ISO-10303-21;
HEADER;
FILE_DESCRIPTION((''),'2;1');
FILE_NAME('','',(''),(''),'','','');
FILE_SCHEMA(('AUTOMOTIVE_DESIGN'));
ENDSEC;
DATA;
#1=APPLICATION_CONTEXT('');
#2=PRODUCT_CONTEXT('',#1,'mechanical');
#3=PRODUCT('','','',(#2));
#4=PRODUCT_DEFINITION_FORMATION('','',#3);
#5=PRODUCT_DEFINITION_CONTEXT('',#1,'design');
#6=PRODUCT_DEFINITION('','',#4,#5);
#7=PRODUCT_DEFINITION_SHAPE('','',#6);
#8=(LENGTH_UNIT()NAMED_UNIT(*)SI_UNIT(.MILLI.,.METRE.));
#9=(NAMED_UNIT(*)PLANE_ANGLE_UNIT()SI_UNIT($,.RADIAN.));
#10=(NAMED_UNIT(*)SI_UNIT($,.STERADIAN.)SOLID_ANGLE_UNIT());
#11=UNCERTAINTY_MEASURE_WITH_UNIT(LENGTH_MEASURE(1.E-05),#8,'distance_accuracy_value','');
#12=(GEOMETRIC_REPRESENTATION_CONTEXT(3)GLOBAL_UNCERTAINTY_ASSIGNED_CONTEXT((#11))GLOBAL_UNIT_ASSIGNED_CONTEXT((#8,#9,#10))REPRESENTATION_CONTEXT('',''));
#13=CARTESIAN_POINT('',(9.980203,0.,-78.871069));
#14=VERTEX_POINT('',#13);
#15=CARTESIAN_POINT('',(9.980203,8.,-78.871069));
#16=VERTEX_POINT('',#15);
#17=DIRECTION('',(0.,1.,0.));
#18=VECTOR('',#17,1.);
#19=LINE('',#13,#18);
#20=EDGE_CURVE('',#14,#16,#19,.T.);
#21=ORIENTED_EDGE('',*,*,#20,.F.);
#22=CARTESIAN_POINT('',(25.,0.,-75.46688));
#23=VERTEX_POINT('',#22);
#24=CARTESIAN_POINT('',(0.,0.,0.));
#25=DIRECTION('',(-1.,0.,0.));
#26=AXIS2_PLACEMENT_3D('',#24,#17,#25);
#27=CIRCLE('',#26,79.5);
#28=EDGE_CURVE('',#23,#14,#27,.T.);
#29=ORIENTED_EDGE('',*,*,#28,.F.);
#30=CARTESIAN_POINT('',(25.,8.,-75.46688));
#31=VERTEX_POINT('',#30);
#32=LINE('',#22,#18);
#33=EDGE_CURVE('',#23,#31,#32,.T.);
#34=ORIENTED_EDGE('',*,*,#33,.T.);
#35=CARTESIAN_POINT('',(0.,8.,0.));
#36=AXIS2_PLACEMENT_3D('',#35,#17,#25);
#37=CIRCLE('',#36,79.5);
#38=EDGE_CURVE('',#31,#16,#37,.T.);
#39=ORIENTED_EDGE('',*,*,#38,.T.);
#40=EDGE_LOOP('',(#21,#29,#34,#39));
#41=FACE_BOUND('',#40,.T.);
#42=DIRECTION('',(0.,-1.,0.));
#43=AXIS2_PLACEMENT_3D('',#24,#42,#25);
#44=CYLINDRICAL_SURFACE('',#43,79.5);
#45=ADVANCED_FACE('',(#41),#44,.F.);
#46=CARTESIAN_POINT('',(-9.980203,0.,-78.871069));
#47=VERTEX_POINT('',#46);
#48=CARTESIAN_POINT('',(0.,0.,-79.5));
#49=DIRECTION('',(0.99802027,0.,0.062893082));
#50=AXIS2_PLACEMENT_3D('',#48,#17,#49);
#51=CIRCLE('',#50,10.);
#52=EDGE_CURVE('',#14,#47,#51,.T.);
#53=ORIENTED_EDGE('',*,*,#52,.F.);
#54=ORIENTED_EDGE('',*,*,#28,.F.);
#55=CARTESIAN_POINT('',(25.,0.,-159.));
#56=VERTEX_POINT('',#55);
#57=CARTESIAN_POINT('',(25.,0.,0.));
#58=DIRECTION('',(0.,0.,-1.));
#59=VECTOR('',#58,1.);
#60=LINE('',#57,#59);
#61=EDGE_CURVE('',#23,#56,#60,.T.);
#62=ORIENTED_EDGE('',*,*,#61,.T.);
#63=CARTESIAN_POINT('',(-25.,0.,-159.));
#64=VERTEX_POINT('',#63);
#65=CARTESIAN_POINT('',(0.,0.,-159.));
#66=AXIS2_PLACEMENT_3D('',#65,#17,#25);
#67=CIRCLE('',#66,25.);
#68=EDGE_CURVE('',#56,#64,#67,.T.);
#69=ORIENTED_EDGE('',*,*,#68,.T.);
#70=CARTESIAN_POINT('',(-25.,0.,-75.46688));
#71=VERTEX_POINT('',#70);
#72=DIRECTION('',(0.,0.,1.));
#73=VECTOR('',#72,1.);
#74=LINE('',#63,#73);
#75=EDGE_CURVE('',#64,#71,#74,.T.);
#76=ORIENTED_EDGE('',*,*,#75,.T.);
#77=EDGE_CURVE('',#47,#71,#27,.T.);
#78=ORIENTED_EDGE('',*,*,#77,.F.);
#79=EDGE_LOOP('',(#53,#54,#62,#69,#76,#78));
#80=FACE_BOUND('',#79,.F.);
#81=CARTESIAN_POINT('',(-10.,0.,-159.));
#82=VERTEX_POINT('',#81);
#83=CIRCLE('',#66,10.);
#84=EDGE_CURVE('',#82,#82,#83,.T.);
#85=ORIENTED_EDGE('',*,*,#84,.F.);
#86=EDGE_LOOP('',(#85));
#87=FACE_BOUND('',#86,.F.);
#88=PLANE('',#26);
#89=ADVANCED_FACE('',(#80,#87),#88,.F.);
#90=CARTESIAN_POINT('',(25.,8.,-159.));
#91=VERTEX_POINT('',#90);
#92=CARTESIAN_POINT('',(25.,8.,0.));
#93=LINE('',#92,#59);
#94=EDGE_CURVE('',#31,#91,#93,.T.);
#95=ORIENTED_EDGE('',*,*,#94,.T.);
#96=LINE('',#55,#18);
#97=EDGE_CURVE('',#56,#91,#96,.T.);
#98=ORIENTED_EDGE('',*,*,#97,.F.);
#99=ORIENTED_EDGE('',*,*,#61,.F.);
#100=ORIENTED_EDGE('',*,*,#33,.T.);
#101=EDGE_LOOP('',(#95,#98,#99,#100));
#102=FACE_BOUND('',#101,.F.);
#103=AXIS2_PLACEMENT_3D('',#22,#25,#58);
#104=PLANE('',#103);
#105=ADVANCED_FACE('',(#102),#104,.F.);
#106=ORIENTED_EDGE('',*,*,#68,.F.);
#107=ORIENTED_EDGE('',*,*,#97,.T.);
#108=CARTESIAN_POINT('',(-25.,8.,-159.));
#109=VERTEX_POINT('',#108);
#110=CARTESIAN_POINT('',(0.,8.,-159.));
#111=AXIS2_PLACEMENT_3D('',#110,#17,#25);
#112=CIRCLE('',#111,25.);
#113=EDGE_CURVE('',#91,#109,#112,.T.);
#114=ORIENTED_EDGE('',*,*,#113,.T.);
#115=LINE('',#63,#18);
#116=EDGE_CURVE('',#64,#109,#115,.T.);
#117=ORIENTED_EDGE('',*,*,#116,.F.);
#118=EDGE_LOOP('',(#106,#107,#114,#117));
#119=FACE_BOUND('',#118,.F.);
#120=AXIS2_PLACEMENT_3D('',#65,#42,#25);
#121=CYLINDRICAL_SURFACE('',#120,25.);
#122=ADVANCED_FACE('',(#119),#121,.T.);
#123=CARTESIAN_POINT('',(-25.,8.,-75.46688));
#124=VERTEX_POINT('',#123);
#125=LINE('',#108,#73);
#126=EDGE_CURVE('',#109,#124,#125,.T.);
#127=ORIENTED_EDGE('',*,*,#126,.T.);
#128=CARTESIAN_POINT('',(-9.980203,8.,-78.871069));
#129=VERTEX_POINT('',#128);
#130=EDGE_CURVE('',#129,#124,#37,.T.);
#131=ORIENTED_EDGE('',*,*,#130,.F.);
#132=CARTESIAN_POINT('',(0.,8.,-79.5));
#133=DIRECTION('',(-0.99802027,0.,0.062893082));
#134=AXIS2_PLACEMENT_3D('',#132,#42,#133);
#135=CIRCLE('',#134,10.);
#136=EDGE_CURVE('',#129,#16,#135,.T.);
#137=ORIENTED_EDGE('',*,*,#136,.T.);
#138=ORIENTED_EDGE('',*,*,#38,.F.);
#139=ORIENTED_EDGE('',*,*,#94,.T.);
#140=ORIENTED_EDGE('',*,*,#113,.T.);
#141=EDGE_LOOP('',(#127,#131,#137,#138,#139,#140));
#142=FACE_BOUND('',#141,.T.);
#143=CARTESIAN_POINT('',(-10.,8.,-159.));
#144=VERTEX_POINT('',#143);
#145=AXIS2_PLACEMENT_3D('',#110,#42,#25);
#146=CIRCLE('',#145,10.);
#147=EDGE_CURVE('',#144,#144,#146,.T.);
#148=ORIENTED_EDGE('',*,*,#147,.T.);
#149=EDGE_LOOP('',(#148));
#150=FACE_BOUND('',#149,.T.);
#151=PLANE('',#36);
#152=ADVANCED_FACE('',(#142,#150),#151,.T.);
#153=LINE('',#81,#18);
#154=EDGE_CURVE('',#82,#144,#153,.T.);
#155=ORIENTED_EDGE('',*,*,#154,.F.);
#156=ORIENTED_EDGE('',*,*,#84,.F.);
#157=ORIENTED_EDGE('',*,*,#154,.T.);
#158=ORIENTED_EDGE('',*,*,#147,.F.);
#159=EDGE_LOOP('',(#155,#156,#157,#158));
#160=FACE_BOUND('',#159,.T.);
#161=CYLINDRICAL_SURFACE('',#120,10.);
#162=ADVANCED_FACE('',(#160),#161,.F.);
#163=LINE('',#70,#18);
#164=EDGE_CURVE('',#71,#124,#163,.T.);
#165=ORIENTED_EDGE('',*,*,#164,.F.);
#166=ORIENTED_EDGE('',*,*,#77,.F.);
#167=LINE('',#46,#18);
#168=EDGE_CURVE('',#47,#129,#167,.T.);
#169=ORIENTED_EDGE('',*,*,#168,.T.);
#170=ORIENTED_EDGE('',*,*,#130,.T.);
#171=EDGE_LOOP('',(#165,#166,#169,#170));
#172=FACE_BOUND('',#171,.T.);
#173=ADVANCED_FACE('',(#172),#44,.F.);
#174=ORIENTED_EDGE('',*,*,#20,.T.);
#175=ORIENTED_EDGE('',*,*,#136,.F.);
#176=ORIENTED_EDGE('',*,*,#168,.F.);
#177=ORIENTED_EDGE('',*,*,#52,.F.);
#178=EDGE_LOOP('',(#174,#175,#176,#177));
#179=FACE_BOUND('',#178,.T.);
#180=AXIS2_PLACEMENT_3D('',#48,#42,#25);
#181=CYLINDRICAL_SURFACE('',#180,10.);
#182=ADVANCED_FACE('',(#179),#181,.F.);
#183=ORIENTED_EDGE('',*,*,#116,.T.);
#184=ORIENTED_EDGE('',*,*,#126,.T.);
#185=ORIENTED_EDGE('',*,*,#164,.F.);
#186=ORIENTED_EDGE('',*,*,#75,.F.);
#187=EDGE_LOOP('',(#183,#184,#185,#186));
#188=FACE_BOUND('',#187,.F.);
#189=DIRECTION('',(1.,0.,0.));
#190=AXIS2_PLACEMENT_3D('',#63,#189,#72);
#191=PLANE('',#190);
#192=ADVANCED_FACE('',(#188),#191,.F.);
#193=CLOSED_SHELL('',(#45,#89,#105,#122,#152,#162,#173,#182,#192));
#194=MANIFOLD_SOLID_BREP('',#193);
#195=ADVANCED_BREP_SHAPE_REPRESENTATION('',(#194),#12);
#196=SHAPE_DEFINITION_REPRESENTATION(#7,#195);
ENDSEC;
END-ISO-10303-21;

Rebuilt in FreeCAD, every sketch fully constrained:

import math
import FreeCAD as App
import Part
import Sketcher

V = App.Vector

doc = App.newDocument("Part")
params = doc.addObject("Spreadsheet::Sheet", "Params")
for row, (alias, value) in enumerate([
    ("sketch1_diameter", "20 mm"),
    ("sketch1_radius", "25 mm"),
    ("sketch1_radius2", "79.5 mm"),
    ("pad1_length", "8 mm"),
], start=1):
    params.set(f"A{row}", alias)
    params.set(f"B{row}", "=" + value)
    params.setAlias(f"B{row}", alias)

body = doc.addObject("PartDesign::Body", "Body")

# Sketch on XZ plane
sketch1 = doc.addObject("Sketcher::SketchObject", "Sketch")
body.addObject(sketch1)
sketch1.AttachmentSupport = (doc.XZ_Plane, [""])
sketch1.MapMode = "FlatFace"
sketch1.addGeometry(Part.LineSegment(V(-25, -159, 0), V(-25, -75, 0)), False)
sketch1.addGeometry(Part.ArcOfCircle(Part.Circle(V(0, 0, 0), V(0, 0, 1), 80), math.radians(-108.33), math.radians(-97.21)), False)
sketch1.addGeometry(Part.ArcOfCircle(Part.Circle(V(0, -80, 0), V(0, 0, 1), 10), math.radians(176), math.radians(364)), False)
sketch1.addGeometry(Part.ArcOfCircle(Part.Circle(V(0, 0, 0), V(0, 0, 1), 80), math.radians(-82.79), math.radians(-71.67)), False)
sketch1.addGeometry(Part.LineSegment(V(25, -75, 0), V(25, -159, 0)), False)
sketch1.addGeometry(Part.ArcOfCircle(Part.Circle(V(0, -159, 0), V(0, 0, 1), 25), math.radians(180), math.radians(360)), False)
sketch1.addGeometry(Part.Circle(V(0, -159, 0), V(0, 0, 1), 10), False)
sketch1.addConstraint(Sketcher.Constraint("Coincident", 0, 2, 1, 1))
sketch1.addConstraint(Sketcher.Constraint("Coincident", 1, 2, 2, 1))
sketch1.addConstraint(Sketcher.Constraint("Coincident", 2, 2, 3, 1))
sketch1.addConstraint(Sketcher.Constraint("Coincident", 3, 2, 4, 1))
sketch1.addConstraint(Sketcher.Constraint("Tangent", 4, 2, 5, 2))
sketch1.addConstraint(Sketcher.Constraint("Tangent", 5, 1, 0, 1))
sketch1.addConstraint(Sketcher.Constraint("Vertical", 0))
sketch1.addConstraint(Sketcher.Constraint("Vertical", 4))
sketch1.addConstraint(Sketcher.Constraint("Coincident", 1, 3, -1, 1))
sketch1.addConstraint(Sketcher.Constraint("Coincident", 3, 3, -1, 1))
sketch1.addConstraint(Sketcher.Constraint("Coincident", 6, 3, 5, 3))
sketch1.addConstraint(Sketcher.Constraint("Equal", 1, 3))
sketch1.addConstraint(Sketcher.Constraint("Equal", 2, 6))
sketch1.addConstraint(Sketcher.Constraint("PointOnObject", 2, 3, -2))
sketch1.addConstraint(Sketcher.Constraint("PointOnObject", 5, 3, -2))
sketch1.addConstraint(Sketcher.Constraint("Diameter", 6, 20.0))
sketch1.addConstraint(Sketcher.Constraint("Radius", 5, 25.0))
sketch1.addConstraint(Sketcher.Constraint("Radius", 1, 79.5))
sketch1.addConstraint(Sketcher.Constraint("DistanceY", 5, 3, -1, 1, 159.0))
sketch1.addConstraint(Sketcher.Constraint("DistanceY", 2, 3, -1, 1, 79.5))
sketch1.setExpression("Constraints[15]", "Params.sketch1_diameter")
sketch1.setExpression("Constraints[16]", "Params.sketch1_radius")
sketch1.setExpression("Constraints[17]", "Params.sketch1_radius2")
pad1 = doc.addObject("PartDesign::Pad", "Pad")
body.addObject(pad1)
pad1.Profile = sketch1
pad1.setExpression("Length", "Params.pad1_length")
pad1.Reversed = True

doc.recompute()
